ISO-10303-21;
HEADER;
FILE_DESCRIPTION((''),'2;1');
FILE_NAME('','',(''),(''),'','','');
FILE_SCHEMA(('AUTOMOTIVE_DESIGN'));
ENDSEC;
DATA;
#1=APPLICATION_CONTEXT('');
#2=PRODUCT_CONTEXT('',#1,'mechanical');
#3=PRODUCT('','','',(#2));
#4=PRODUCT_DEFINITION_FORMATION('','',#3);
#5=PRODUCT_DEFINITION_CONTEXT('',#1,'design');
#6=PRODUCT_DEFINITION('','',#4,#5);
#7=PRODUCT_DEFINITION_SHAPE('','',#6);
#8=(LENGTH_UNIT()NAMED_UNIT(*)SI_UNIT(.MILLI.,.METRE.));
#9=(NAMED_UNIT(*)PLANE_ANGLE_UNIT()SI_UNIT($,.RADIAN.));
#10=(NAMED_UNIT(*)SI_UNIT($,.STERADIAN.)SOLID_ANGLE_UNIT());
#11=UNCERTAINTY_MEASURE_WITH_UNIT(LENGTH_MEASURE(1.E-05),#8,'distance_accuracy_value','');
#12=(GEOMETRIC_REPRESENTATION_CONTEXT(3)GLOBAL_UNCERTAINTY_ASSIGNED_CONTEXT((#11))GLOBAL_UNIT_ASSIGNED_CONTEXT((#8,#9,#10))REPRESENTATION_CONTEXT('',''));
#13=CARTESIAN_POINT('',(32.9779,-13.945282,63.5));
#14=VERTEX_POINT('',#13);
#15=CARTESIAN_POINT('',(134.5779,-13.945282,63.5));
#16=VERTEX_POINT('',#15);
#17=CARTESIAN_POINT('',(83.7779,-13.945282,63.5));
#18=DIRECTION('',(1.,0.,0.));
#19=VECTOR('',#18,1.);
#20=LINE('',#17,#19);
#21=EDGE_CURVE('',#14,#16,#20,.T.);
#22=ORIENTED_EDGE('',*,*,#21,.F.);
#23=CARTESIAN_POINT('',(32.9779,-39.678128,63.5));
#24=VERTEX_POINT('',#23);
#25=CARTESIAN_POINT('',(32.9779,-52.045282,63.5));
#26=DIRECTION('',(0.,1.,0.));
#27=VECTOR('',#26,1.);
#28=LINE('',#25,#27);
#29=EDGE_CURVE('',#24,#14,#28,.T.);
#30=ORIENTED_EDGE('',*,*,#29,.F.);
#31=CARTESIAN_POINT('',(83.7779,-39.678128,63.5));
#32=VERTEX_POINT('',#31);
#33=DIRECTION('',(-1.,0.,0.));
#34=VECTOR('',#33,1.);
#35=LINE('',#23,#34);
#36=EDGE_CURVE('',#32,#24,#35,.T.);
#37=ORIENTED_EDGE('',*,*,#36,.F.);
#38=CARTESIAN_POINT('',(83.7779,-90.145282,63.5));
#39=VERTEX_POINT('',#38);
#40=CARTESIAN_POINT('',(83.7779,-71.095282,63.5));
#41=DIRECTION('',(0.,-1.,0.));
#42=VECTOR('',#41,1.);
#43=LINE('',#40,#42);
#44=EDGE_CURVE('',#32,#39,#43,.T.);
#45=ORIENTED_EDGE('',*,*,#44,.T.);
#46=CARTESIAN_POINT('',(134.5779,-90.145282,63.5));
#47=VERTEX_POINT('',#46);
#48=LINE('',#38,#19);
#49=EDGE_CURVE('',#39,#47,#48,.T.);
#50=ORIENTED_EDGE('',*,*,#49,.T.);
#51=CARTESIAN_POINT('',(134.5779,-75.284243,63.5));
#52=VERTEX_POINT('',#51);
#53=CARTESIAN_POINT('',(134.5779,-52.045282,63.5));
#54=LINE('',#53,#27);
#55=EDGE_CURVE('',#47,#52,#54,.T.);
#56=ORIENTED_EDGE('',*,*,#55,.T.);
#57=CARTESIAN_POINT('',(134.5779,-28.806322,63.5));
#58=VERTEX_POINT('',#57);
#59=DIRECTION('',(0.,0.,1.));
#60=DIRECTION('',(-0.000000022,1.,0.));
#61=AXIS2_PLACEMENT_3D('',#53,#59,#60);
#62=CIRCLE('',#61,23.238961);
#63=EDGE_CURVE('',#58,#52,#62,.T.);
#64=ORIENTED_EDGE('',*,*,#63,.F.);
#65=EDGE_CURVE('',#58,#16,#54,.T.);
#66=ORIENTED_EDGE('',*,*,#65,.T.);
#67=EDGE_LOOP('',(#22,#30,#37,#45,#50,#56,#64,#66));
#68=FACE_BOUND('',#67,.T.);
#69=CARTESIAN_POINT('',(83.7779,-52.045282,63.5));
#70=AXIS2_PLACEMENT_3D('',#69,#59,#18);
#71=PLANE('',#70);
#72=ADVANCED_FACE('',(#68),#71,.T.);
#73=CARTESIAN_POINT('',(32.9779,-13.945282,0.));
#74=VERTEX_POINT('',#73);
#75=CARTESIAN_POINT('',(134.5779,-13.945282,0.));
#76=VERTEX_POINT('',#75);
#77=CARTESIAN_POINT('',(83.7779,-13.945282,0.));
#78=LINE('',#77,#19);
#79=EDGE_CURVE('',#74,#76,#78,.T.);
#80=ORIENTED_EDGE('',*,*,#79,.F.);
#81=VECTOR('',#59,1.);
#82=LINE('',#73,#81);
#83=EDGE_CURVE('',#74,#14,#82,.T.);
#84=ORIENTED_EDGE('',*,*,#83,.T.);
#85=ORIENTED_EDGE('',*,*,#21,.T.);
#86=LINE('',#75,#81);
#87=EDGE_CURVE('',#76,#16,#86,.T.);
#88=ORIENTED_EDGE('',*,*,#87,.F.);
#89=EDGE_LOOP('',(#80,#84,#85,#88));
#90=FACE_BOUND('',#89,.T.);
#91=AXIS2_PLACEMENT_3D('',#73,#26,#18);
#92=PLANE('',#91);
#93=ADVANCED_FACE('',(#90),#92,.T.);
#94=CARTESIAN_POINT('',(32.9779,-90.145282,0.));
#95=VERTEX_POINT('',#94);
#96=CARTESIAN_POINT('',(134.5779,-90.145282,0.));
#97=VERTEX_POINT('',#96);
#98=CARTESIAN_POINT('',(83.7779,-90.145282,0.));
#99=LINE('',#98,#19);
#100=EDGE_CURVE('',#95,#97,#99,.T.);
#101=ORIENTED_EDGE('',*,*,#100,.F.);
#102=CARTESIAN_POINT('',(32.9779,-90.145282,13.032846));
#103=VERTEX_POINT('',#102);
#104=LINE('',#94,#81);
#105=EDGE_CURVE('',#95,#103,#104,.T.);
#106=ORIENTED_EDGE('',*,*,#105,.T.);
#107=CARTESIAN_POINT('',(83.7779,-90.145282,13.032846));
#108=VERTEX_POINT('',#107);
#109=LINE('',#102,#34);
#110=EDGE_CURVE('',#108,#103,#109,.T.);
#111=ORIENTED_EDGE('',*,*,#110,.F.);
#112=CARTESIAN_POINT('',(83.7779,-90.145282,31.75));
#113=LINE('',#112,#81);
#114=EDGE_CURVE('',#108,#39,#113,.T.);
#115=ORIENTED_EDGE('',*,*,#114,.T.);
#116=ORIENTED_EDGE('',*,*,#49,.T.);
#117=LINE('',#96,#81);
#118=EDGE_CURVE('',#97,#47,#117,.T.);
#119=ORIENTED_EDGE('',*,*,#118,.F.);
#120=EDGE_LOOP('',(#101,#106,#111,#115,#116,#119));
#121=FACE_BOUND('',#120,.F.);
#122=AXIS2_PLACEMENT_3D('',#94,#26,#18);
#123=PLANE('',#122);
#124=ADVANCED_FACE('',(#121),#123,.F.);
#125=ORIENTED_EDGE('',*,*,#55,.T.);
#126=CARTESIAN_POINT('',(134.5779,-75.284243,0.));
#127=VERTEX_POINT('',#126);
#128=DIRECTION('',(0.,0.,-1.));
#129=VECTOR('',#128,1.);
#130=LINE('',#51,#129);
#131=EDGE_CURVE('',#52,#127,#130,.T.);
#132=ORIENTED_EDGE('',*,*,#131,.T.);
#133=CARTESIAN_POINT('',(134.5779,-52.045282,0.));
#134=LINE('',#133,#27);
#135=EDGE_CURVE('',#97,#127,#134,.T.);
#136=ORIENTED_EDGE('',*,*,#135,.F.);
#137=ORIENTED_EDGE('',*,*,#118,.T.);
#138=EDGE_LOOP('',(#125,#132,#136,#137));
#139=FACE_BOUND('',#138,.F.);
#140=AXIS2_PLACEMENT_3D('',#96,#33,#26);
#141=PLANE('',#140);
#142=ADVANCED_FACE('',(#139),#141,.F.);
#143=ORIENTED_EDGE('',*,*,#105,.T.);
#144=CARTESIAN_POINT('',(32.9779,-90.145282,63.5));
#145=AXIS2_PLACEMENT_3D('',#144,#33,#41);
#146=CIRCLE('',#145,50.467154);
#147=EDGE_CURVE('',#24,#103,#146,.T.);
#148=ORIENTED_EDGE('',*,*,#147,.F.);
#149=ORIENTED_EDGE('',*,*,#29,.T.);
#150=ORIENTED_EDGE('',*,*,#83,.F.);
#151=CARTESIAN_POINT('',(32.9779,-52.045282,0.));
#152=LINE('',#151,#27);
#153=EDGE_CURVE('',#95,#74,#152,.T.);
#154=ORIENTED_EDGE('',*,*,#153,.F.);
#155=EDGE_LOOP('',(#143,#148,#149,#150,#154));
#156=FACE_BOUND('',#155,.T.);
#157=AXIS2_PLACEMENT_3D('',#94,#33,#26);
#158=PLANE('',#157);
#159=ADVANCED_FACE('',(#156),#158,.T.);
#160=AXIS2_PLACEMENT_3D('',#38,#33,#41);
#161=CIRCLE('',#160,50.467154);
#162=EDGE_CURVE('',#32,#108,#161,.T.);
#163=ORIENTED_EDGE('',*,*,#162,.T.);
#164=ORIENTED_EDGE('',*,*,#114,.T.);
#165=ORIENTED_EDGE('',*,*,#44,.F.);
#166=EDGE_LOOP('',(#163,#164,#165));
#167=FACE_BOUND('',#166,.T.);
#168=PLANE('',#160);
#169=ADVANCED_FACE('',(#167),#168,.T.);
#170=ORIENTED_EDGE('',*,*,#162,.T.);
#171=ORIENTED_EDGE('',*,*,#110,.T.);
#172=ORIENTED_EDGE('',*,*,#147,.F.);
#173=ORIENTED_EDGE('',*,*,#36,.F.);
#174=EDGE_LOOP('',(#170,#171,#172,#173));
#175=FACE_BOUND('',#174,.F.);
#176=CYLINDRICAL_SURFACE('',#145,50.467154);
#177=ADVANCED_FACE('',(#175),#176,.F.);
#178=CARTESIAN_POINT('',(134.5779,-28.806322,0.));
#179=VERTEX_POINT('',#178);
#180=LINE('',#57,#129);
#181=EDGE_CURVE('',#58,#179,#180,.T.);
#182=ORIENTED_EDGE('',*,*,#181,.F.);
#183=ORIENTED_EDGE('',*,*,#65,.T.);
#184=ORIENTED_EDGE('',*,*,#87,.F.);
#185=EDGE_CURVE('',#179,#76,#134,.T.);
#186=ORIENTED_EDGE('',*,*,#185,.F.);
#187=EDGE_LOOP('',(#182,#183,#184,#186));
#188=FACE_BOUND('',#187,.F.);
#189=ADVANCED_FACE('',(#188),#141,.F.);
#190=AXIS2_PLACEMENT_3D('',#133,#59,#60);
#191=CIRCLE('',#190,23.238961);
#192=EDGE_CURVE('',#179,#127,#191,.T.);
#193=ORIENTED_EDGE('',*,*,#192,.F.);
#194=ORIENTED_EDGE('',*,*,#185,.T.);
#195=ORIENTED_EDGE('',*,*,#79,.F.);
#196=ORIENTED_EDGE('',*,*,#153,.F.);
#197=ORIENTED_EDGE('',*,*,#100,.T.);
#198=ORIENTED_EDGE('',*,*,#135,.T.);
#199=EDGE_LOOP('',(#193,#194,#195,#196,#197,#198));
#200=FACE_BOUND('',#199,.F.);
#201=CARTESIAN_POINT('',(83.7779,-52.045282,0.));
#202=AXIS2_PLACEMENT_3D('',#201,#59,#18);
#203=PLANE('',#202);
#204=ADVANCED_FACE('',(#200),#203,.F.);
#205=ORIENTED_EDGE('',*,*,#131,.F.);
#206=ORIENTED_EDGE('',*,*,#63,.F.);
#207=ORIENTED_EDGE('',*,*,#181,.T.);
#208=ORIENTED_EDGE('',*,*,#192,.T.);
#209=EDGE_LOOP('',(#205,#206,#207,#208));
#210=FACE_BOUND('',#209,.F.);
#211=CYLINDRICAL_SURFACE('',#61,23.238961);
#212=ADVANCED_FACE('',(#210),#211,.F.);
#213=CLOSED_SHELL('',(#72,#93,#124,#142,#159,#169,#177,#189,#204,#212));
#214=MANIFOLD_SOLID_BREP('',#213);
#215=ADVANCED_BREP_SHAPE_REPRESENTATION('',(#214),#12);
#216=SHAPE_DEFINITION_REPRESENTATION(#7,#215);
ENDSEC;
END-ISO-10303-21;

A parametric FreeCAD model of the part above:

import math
import FreeCAD as App
import Part
import Sketcher

V = App.Vector
Q = App.Units.Quantity


def add_polygon(sketch, points):
    """Adds a closed chain of lines whose ends are joined by coincident constraints."""
    first, n = sketch.GeometryCount, len(points)
    for a, b in zip(points, points[1:] + points[:1]):
        sketch.addGeometry(Part.LineSegment(App.Vector(*a, 0), App.Vector(*b, 0)), False)
    for i in range(n):
        sketch.addConstraint(Sketcher.Constraint("Coincident", first + i, 2, first + (i + 1) % n, 1))

doc = App.newDocument("Part")
body = doc.addObject("PartDesign::Body", "Body")

# Sketch on XY plane
sketch1 = body.newObject("Sketcher::SketchObject", "Sketch")
sketch1.AttachmentSupport = (doc.getObject("XY_Plane"), [""])
sketch1.MapMode = "FlatFace"
add_polygon(sketch1, [(33, -14), (33, -90), (135, -90), (135, -14)])  # lines 0-3
sketch1.addConstraint([
    Sketcher.Constraint("Vertical", 0),
    Sketcher.Constraint("Horizontal", 1),
    Sketcher.Constraint("Vertical", 2),
    Sketcher.Constraint("Horizontal", 3),
    Sketcher.Constraint("DistanceX", 1, 1, 1, 2, Q("4 in")),
    Sketcher.Constraint("DistanceY", 0, 2, 0, 1, Q("3 in")),
    Sketcher.Constraint("DistanceX", -1, 1, 0, 2, Q("32.9779 mm")),
    Sketcher.Constraint("DistanceY", 0, 2, -1, 1, Q("90.145282 mm")),
])
pad1 = body.newObject("PartDesign::Pad", "Pad")
pad1.Profile = sketch1
pad1.Length = Q("2.5 in")

# Sketch on XY plane
sketch2 = body.newObject("Sketcher::SketchObject", "Sketch001")
sketch2.AttachmentSupport = (doc.getObject("XY_Plane"), [""])
sketch2.MapMode = "FlatFace"
sketch2.AttachmentOffset = App.Placement(V(0, 0, 2.5 * 25.4), App.Rotation())
sketch2.addGeometry([
    Part.ArcOfCircle(Part.Circle(V(135, -52, 0), V(0, 0, 1), 23), math.radians(-90), math.radians(0)),
    Part.ArcOfCircle(Part.Circle(V(135, -52, 0), V(0, 0, 1), 23), math.radians(0), math.radians(90)),
    Part.ArcOfCircle(Part.Circle(V(135, -52, 0), V(0, 0, 1), 23), math.radians(90), math.radians(270)),
], False)
sketch2.addConstraint([
    Sketcher.Constraint("Tangent", 0, 2, 1, 1),
    Sketcher.Constraint("Tangent", 1, 2, 2, 1),
    Sketcher.Constraint("Tangent", 2, 2, 0, 1),
    Sketcher.Constraint("Horizontal", 2, 3, 0, 2),
    Sketcher.Constraint("Vertical", 2, 3, 1, 2),
    Sketcher.Constraint("Vertical", 1, 2, 2, 2),
    Sketcher.Constraint("Radius", 0, Q("23.238959 mm")),
    Sketcher.Constraint("DistanceX", -1, 1, 0, 3, Q("134.577901 mm")),
    Sketcher.Constraint("DistanceY", 1, 3, -1, 1, Q("52.045281 mm")),
])
pocket1 = body.newObject("PartDesign::Pocket", "Pocket")
pocket1.Profile = sketch2
pocket1.Length = Q("2.82 in")

# Sketch on YZ plane
sketch3 = body.newObject("Sketcher::SketchObject", "Sketch002")
sketch3.AttachmentSupport = (doc.getObject("YZ_Plane"), [""])
sketch3.MapMode = "FlatFace"
sketch3.AttachmentOffset = App.Placement(V(0, 0, 32.9779), App.Rotation())
sketch3.addGeometry(Part.Circle(V(-90, 64, 0), V(0, 0, 1), 50), False)
sketch3.addConstraint([
    Sketcher.Constraint("DistanceY", -1, 1, 0, 3, Q("2.5 in")),
    Sketcher.Constraint("Diameter", 0, Q("100.934308 mm")),
    Sketcher.Constraint("DistanceX", 0, 3, -1, 1, Q("90.145282 mm")),
])
pocket2 = body.newObject("PartDesign::Pocket", "Pocket001")
pocket2.Profile = sketch3
pocket2.Length = Q("2 in")
pocket2.Reversed = True

doc.recompute()
